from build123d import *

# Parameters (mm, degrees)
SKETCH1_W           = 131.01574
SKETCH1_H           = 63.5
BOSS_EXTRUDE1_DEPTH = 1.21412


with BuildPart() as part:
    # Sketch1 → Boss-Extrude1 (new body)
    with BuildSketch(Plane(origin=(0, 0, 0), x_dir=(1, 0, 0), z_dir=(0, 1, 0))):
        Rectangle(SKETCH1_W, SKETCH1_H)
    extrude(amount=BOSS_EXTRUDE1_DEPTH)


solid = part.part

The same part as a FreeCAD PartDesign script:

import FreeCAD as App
import Part
import Sketcher
Q = App.Units.Quantity


def add_polygon(sketch, points):
    """Adds a closed chain of lines whose ends are joined by coincident constraints."""
    first, n = sketch.GeometryCount, len(points)
    for a, b in zip(points, points[1:] + points[:1]):
        sketch.addGeometry(Part.LineSegment(App.Vector(*a, 0), App.Vector(*b, 0)), False)
    for i in range(n):
        sketch.addConstraint(Sketcher.Constraint("Coincident", first + i, 2, first + (i + 1) % n, 1))

doc = App.newDocument("Part")
params = doc.addObject("Spreadsheet::Sheet", "Params")
for row, (alias, value) in enumerate([
    ("sketch1_height", "2.5 in"),
    ("pad1_length", "0.0478 in"),
], start=1):
    params.set(f"A{row}", alias)
    params.set(f"B{row}", "=" + value)
    params.setAlias(f"B{row}", alias)

body = doc.addObject("PartDesign::Body", "Body")

# Sketch on XZ plane
sketch1 = body.newObject("Sketcher::SketchObject", "Sketch")
sketch1.AttachmentSupport = (doc.getObject("XZ_Plane"), [""])
sketch1.MapMode = "FlatFace"
add_polygon(sketch1, [(-66, -32), (-66, 32), (66, 32), (66, -32)])  # lines 0-3
sketch1.addConstraint(Sketcher.Constraint("Vertical", 0))
sketch1.addConstraint(Sketcher.Constraint("Horizontal", 1))
sketch1.addConstraint(Sketcher.Constraint("Vertical", 2))
sketch1.addConstraint(Sketcher.Constraint("Horizontal", 3))
sketch1.addConstraint(Sketcher.Constraint("Symmetric", 0, 2, 2, 2, -1, 1))
sketch1.addConstraint(Sketcher.Constraint("DistanceY", 0, 1, 0, 2, Q("2.5 in")))
sketch1.addConstraint(Sketcher.Constraint("DistanceX", 1, 1, 1, 2, Q("5.1581 in")))
sketch1.setExpression("Constraints[9]", "Params.sketch1_height")
pad1 = body.newObject("PartDesign::Pad", "Pad")
pad1.Profile = sketch1
pad1.setExpression("Length", "Params.pad1_length")
pad1.Reversed = True

doc.recompute()
